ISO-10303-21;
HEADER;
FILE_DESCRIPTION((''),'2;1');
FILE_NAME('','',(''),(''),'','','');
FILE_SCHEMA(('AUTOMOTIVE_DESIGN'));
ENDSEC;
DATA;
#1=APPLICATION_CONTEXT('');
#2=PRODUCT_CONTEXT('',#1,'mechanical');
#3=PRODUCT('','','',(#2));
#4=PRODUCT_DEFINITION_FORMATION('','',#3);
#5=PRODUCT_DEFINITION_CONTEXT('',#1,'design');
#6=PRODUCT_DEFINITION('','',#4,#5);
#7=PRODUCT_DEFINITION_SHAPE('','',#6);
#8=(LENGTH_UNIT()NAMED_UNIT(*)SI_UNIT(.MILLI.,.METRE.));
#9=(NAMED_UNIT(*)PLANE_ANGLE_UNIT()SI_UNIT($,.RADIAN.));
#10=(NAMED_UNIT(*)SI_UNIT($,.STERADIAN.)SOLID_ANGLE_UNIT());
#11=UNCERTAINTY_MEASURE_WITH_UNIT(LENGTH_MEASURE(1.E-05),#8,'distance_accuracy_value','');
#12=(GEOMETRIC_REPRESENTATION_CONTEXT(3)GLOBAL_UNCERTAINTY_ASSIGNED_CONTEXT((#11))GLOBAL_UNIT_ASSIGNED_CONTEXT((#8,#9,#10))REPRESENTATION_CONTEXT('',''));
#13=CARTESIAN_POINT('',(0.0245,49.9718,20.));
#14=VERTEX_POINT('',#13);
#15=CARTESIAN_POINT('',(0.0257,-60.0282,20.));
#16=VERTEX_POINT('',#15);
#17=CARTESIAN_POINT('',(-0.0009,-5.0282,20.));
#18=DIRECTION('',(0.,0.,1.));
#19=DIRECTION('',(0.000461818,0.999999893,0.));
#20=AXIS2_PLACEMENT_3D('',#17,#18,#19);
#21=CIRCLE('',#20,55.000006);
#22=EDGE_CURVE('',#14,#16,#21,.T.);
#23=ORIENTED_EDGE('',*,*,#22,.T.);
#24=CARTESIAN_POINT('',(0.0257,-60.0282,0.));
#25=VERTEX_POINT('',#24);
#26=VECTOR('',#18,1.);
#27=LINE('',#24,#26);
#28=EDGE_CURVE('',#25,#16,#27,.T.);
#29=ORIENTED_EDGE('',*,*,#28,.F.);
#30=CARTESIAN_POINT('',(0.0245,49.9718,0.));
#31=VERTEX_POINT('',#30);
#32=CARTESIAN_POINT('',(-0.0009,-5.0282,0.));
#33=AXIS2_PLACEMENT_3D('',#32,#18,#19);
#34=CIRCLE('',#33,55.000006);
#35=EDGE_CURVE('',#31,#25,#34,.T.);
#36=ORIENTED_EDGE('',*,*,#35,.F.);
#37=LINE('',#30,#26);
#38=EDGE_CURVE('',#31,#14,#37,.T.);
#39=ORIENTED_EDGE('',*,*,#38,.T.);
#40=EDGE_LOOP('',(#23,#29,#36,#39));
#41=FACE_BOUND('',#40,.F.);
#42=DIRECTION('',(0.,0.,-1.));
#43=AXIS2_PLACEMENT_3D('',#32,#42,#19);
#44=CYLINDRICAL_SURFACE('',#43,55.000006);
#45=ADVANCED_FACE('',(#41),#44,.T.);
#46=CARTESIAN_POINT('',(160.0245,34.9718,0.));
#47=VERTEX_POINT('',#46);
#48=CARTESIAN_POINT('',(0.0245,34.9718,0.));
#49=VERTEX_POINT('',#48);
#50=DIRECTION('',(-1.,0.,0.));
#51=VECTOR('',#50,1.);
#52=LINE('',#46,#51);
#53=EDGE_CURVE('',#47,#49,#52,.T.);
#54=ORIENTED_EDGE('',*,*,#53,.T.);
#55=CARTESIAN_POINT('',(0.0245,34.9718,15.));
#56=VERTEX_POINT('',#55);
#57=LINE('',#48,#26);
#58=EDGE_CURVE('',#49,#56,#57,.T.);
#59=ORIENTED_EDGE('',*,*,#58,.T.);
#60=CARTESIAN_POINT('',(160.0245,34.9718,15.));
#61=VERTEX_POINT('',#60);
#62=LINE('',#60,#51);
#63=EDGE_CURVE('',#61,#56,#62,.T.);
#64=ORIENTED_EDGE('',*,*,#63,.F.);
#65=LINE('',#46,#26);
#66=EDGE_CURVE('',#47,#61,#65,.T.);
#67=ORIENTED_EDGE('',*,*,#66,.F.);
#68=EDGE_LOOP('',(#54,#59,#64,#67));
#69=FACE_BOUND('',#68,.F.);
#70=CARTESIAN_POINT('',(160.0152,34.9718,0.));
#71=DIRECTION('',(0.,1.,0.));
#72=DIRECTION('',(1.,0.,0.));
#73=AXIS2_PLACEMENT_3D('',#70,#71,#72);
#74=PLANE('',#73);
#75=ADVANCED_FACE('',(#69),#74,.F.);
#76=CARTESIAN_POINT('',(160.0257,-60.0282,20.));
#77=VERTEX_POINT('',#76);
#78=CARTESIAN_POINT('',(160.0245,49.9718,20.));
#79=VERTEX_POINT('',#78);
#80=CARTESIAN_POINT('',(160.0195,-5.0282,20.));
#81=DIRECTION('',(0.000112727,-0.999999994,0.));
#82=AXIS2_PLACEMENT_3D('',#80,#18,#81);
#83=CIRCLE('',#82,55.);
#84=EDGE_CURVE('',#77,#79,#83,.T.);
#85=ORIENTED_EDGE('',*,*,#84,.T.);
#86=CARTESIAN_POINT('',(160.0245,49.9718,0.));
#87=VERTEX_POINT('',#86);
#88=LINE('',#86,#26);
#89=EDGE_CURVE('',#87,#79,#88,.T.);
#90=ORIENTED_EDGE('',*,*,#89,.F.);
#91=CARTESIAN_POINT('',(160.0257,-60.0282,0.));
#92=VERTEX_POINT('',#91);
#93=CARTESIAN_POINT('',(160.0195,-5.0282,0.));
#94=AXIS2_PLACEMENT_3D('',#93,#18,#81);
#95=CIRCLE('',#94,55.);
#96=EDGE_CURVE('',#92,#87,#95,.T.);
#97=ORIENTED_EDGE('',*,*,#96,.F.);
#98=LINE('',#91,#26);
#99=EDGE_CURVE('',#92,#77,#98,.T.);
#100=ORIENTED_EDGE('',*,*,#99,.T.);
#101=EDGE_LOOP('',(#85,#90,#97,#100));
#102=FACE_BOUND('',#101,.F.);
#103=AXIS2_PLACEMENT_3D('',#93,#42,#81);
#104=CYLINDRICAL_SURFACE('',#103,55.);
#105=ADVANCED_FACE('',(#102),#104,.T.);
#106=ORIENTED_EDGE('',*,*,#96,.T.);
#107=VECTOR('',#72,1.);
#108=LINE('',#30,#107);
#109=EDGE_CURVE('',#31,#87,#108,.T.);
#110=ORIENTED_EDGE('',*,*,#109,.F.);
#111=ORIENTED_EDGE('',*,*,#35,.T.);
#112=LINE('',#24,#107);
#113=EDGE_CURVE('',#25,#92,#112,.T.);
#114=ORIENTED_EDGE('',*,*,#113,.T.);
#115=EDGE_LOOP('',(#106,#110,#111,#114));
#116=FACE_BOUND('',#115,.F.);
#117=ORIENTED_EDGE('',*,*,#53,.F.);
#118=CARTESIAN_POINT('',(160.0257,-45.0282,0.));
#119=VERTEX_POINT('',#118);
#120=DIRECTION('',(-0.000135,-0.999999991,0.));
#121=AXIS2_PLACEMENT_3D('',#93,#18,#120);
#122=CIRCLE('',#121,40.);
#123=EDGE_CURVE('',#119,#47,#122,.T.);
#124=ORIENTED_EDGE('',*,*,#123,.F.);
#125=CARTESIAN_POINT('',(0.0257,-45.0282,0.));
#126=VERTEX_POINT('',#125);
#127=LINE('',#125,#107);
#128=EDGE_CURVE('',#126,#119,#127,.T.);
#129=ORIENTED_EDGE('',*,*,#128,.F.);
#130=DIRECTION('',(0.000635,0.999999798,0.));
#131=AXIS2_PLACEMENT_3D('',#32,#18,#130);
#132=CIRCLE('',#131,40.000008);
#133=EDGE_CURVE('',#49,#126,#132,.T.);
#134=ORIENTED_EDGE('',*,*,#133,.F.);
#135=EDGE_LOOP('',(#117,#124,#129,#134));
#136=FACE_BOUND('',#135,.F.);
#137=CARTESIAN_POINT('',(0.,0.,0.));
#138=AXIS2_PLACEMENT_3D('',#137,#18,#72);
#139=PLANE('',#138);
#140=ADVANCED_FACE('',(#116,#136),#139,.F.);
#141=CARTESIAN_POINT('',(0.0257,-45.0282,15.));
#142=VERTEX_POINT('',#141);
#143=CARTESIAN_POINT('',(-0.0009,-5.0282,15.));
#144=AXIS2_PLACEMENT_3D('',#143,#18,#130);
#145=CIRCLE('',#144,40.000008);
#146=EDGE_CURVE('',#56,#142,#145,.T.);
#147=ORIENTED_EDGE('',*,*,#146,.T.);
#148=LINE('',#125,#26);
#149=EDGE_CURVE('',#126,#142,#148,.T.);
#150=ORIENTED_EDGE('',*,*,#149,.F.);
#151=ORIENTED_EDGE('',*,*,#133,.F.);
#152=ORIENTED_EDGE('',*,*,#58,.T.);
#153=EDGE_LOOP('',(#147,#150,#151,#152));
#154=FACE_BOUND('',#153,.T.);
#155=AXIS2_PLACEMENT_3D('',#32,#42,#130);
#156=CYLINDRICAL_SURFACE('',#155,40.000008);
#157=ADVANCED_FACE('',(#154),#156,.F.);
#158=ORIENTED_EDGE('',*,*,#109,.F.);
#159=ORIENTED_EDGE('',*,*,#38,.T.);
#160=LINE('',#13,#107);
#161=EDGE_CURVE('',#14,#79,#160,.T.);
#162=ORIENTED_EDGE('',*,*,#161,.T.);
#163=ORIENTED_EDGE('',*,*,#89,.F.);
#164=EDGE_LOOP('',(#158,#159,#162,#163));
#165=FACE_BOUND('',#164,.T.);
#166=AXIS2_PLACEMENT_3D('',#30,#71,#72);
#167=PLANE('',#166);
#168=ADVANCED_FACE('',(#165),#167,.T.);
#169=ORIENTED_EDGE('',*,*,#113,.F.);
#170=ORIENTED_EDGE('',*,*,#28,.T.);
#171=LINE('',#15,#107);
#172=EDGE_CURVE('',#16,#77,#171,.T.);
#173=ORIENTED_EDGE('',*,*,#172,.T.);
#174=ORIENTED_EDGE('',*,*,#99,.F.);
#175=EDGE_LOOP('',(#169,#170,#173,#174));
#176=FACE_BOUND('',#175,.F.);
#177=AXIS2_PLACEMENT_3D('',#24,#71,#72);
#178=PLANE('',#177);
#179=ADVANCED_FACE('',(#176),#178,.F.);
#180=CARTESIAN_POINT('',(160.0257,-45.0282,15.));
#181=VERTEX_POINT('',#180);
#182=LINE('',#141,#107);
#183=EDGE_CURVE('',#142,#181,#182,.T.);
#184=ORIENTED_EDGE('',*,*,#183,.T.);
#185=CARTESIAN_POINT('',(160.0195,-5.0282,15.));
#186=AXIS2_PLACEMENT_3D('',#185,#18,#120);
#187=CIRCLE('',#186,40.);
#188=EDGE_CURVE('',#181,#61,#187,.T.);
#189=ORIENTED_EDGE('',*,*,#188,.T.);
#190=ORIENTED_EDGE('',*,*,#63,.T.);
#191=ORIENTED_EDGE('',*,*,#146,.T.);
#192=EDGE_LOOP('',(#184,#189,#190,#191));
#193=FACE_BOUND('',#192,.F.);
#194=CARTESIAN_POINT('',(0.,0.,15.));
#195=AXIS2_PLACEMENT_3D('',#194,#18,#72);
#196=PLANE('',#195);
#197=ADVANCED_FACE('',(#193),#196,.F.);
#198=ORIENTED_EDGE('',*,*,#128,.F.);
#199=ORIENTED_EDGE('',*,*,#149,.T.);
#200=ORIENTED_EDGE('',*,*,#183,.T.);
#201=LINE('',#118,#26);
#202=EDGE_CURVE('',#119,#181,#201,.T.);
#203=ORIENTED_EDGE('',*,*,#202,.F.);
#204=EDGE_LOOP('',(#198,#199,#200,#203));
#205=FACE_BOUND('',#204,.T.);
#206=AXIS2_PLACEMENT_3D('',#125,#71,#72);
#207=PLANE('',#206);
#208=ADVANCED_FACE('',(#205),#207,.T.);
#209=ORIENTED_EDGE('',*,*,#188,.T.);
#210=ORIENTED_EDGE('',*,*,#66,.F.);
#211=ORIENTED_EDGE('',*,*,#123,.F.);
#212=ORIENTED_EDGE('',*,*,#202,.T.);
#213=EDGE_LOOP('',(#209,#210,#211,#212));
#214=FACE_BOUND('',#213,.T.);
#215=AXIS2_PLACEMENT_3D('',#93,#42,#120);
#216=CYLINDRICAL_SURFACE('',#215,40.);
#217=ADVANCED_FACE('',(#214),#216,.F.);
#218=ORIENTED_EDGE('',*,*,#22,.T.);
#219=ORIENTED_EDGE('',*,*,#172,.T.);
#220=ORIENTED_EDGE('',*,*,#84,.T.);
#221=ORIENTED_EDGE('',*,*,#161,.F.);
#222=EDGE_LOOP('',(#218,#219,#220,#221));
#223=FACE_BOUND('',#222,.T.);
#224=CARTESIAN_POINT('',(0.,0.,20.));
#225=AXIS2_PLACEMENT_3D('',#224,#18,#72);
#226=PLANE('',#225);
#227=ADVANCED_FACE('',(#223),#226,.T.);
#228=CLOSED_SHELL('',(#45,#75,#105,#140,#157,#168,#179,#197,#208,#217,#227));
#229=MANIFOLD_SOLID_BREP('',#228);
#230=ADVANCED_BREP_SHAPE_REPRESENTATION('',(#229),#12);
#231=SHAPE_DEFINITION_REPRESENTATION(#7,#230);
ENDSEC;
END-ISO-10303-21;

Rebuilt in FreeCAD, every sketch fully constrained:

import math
import FreeCAD as App
import Part
import Sketcher

V = App.Vector
Q = App.Units.Quantity

doc = App.newDocument("Part")
body = doc.addObject("PartDesign::Body", "Body")

# Sketch on XY plane
sketch1 = body.newObject("Sketcher::SketchObject", "Sketch")
sketch1.AttachmentSupport = (doc.getObject("XY_Plane"), [""])
sketch1.MapMode = "FlatFace"
sketch1.addGeometry(Part.LineSegment(V(160.0245, 49.9718, 0), V(0.0245, 49.9718, 0)), False)
sketch1.addGeometry(Part.ArcOfCircle(Part.Circle(V(-0.0009, -5.0282, 0), V(0, 0, 1), 55.000006), math.radians(89.97354), math.radians(270.02771)), False)
sketch1.addGeometry(Part.LineSegment(V(0.0257, -60.0282, 0), V(160.0257, -60.0282, 0)), False)
sketch1.addGeometry(Part.ArcOfCircle(Part.Circle(V(160.0195, -5.0282, 0), V(0, 0, 1), 55), math.radians(-89.993541), math.radians(89.994791)), False)
sketch1.addConstraint(Sketcher.Constraint("Coincident", 0, 2, 1, 1))
sketch1.addConstraint(Sketcher.Constraint("Coincident", 1, 2, 2, 1))
sketch1.addConstraint(Sketcher.Constraint("Coincident", 2, 2, 3, 1))
sketch1.addConstraint(Sketcher.Constraint("Coincident", 3, 2, 0, 1))
sketch1.addConstraint(Sketcher.Constraint("Horizontal", 0))
sketch1.addConstraint(Sketcher.Constraint("Horizontal", 2))
sketch1.addConstraint(Sketcher.Constraint("Radius", 1, Q("55 mm")))
sketch1.addConstraint(Sketcher.Constraint("DistanceX", 0, 2, 0, 1, Q("160 mm")))
sketch1.addConstraint(Sketcher.Constraint("DistanceX", 2, 1, 2, 2, Q("160 mm")))
sketch1.addConstraint(Sketcher.Constraint("DistanceX", 1, 3, -1, 1, Q("0.001 mm")))
sketch1.addConstraint(Sketcher.Constraint("DistanceX", 0, 2, 3, 3, Q("159.995 mm")))
sketch1.addConstraint(Sketcher.Constraint("DistanceY", 1, 3, -1, 1, Q("5.0282 mm")))
sketch1.addConstraint(Sketcher.Constraint("DistanceX", -1, 1, 3, 3, Q("160.0195 mm")))
sketch1.addConstraint(Sketcher.Constraint("DistanceX", -1, 1, 1, 2, Q("0.0257 mm")))
pad1 = body.newObject("PartDesign::Pad", "Pad")
pad1.Profile = sketch1
pad1.Length = 20

# Sketch on XY plane
sketch2 = body.newObject("Sketcher::SketchObject", "Sketch001")
sketch2.AttachmentSupport = (doc.getObject("XY_Plane"), [""])
sketch2.MapMode = "FlatFace"
sketch2.addGeometry(Part.LineSegment(V(160.0245, 34.9718, 0), V(0.0245, 34.9718, 0)), False)
sketch2.addGeometry(Part.ArcOfCircle(Part.Circle(V(-0.0009, -5.0282, 0), V(0, 0, 1), 40.000008), math.radians(89.963617), math.radians(270.038102)), False)
sketch2.addGeometry(Part.LineSegment(V(0.0257, -45.0282, 0), V(160.0257, -45.0282, 0)), False)
sketch2.addGeometry(Part.ArcOfCircle(Part.Circle(V(160.0195, -5.0282, 0), V(0, 0, 1), 40), math.radians(-89.991119), math.radians(89.992838)), False)
sketch2.addConstraint(Sketcher.Constraint("Coincident", 0, 2, 1, 1))
sketch2.addConstraint(Sketcher.Constraint("Coincident", 1, 2, 2, 1))
sketch2.addConstraint(Sketcher.Constraint("Coincident", 2, 2, 3, 1))
sketch2.addConstraint(Sketcher.Constraint("Coincident", 3, 2, 0, 1))
sketch2.addConstraint(Sketcher.Constraint("Horizontal", 0))
sketch2.addConstraint(Sketcher.Constraint("Horizontal", 2))
sketch2.addConstraint(Sketcher.Constraint("Radius", 1, Q("40 mm")))
sketch2.addConstraint(Sketcher.Constraint("DistanceX", 0, 2, 0, 1, Q("160 mm")))
sketch2.addConstraint(Sketcher.Constraint("DistanceX", 2, 1, 2, 2, Q("160 mm")))
sketch2.addConstraint(Sketcher.Constraint("DistanceX", 1, 3, -1, 1, Q("0.001 mm")))
sketch2.addConstraint(Sketcher.Constraint("DistanceX", 0, 2, 3, 3, Q("159.995 mm")))
sketch2.addConstraint(Sketcher.Constraint("DistanceY", 1, 3, -1, 1, Q("5.0282 mm")))
sketch2.addConstraint(Sketcher.Constraint("DistanceX", -1, 1, 3, 3, Q("160.0195 mm")))
sketch2.addConstraint(Sketcher.Constraint("DistanceX", -1, 1, 1, 2, Q("0.0257 mm")))
pocket1 = body.newObject("PartDesign::Pocket", "Pocket")
pocket1.Profile = sketch2
pocket1.Length = 15
pocket1.Reversed = True

doc.recompute()
